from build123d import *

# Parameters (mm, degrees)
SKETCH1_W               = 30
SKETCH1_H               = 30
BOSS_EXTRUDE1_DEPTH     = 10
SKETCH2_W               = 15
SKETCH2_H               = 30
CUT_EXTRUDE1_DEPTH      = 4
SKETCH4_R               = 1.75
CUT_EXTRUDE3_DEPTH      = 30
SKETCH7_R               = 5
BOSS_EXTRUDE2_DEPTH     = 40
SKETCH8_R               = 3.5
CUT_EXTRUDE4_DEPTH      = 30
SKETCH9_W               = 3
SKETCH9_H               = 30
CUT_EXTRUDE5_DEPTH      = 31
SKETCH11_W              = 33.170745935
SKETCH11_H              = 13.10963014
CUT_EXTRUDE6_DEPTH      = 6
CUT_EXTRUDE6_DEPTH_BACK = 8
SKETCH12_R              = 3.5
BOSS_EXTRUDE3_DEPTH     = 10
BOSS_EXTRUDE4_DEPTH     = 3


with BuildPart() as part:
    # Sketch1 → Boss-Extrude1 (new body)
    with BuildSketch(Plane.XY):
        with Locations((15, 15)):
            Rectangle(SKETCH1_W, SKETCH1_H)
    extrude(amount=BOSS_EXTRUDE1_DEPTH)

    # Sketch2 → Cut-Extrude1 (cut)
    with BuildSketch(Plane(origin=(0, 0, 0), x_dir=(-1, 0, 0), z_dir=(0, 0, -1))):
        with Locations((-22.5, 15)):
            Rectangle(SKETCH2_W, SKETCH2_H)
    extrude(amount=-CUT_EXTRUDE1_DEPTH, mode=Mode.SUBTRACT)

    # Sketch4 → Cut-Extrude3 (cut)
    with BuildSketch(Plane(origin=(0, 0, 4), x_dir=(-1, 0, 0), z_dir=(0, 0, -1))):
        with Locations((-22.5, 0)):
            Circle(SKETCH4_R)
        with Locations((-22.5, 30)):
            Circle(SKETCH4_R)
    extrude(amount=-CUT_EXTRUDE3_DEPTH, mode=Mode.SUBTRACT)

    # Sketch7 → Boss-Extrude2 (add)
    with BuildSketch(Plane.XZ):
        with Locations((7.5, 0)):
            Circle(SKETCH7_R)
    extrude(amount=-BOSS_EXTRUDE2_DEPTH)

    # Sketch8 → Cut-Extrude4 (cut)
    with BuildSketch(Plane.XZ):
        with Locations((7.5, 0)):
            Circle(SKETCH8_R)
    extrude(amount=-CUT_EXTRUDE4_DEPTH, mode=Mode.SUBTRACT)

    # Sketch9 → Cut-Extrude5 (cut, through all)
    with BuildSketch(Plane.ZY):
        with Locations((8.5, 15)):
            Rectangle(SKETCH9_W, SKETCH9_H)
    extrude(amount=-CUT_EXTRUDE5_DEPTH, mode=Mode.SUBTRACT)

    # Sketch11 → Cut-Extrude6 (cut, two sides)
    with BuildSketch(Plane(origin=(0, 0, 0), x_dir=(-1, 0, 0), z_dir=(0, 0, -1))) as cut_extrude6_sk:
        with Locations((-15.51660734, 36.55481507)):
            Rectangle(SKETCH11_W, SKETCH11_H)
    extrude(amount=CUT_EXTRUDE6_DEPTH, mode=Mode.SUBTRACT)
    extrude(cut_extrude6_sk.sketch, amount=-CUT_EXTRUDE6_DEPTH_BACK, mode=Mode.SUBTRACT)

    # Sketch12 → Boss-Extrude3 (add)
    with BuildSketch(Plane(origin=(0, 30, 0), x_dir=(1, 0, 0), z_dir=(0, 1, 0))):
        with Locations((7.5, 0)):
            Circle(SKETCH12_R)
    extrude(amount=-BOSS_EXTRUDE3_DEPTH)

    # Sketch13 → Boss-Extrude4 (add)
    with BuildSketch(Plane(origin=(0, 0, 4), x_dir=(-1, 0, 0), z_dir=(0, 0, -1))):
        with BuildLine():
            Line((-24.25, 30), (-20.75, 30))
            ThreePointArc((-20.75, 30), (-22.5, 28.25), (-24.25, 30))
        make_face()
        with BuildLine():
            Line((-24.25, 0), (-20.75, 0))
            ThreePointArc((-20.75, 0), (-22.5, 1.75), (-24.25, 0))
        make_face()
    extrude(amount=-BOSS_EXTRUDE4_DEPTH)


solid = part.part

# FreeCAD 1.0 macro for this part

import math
import FreeCAD as App
import Part
import Sketcher

doc = App.newDocument("Part")
body = doc.addObject("PartDesign::Body", "Body")

# Sketch on XY plane
sketch1 = body.newObject("Sketcher::SketchObject", "Sketch")
sketch1.AttachmentSupport = (doc.getObject("XY_Plane"), [""])
sketch1.MapMode = "FlatFace"
sketch1.addGeometry(Part.LineSegment(App.Vector(0, 30, 0), App.Vector(0, 0, 0)), False)
sketch1.addGeometry(Part.LineSegment(App.Vector(0, 0, 0), App.Vector(30, 0, 0)), False)
sketch1.addGeometry(Part.LineSegment(App.Vector(30, 0, 0), App.Vector(30, 30, 0)), False)
sketch1.addGeometry(Part.LineSegment(App.Vector(30, 30, 0), App.Vector(0, 30, 0)), False)
sketch1.addConstraint(Sketcher.Constraint("Coincident", 0, 2, 1, 1))
sketch1.addConstraint(Sketcher.Constraint("Coincident", 1, 2, 2, 1))
sketch1.addConstraint(Sketcher.Constraint("Coincident", 2, 2, 3, 1))
sketch1.addConstraint(Sketcher.Constraint("Coincident", 3, 2, 0, 1))
sketch1.addConstraint(Sketcher.Constraint("Vertical", 0))
sketch1.addConstraint(Sketcher.Constraint("Horizontal", 1))
sketch1.addConstraint(Sketcher.Constraint("Vertical", 2))
sketch1.addConstraint(Sketcher.Constraint("Horizontal", 3))
sketch1.addConstraint(Sketcher.Constraint("Coincident", 0, 2, -1, 1))
sketch1.addConstraint(Sketcher.Constraint("Equal", 3, 0))
sketch1.addConstraint(Sketcher.Constraint("DistanceX", 1, 1, 1, 2, 30.0))
pad1 = body.newObject("PartDesign::Pad", "Pad")
pad1.Profile = sketch1
pad1.Length = 10

# Sketch on XY plane
sketch2 = body.newObject("Sketcher::SketchObject", "Sketch001")
sketch2.AttachmentSupport = (doc.getObject("XY_Plane"), [""])
sketch2.MapMode = "FlatFace"
sketch2.addGeometry(Part.LineSegment(App.Vector(30, 30, 0), App.Vector(30, 0, 0)), False)
sketch2.addGeometry(Part.LineSegment(App.Vector(30, 0, 0), App.Vector(15, 0, 0)), False)
sketch2.addGeometry(Part.LineSegment(App.Vector(15, 0, 0), App.Vector(15, 30, 0)), False)
sketch2.addGeometry(Part.LineSegment(App.Vector(15, 30, 0), App.Vector(30, 30, 0)), False)
sketch2.addConstraint(Sketcher.Constraint("Coincident", 0, 2, 1, 1))
sketch2.addConstraint(Sketcher.Constraint("Coincident", 1, 2, 2, 1))
sketch2.addConstraint(Sketcher.Constraint("Coincident", 2, 2, 3, 1))
sketch2.addConstraint(Sketcher.Constraint("Coincident", 3, 2, 0, 1))
sketch2.addConstraint(Sketcher.Constraint("Vertical", 0))
sketch2.addConstraint(Sketcher.Constraint("Horizontal", 1))
sketch2.addConstraint(Sketcher.Constraint("Vertical", 2))
sketch2.addConstraint(Sketcher.Constraint("Horizontal", 3))
sketch2.addConstraint(Sketcher.Constraint("PointOnObject", 0, 2, -1))
sketch2.addConstraint(Sketcher.Constraint("DistanceX", 1, 2, 1, 1, 15.0))
sketch2.addConstraint(Sketcher.Constraint("DistanceY", 0, 2, 0, 1, 30.0))
sketch2.addConstraint(Sketcher.Constraint("DistanceX", -1, 1, 0, 2, 30.0))
pocket1 = body.newObject("PartDesign::Pocket", "Pocket")
pocket1.Profile = sketch2
pocket1.Length = 4
pocket1.Reversed = True

# Sketch on XY plane
sketch3 = body.newObject("Sketcher::SketchObject", "Sketch002")
sketch3.AttachmentSupport = (doc.getObject("XY_Plane"), [""])
sketch3.MapMode = "FlatFace"
sketch3.AttachmentOffset = App.Placement(App.Vector(0, 0, 4), App.Rotation())
sketch3.addGeometry(Part.Circle(App.Vector(22.5, 0, 0), App.Vector(0, 0, 1), 1.8), False)
sketch3.addGeometry(Part.Circle(App.Vector(22.5, 30, 0), App.Vector(0, 0, 1), 1.8), False)
sketch3.addConstraint(Sketcher.Constraint("Equal", 0, 1))
sketch3.addConstraint(Sketcher.Constraint("PointOnObject", 0, 3, -1))
sketch3.addConstraint(Sketcher.Constraint("Vertical", 0, 3, 1, 3))
sketch3.addConstraint(Sketcher.Constraint("Diameter", 0, 3.5))
sketch3.addConstraint(Sketcher.Constraint("DistanceY", -1, 1, 1, 3, 30.0))
sketch3.addConstraint(Sketcher.Constraint("DistanceX", -1, 1, 0, 3, 22.5))
pocket2 = body.newObject("PartDesign::Pocket", "Pocket001")
pocket2.Profile = sketch3
pocket2.Length = 30
pocket2.Reversed = True

# Sketch on XZ plane
sketch4 = body.newObject("Sketcher::SketchObject", "Sketch003")
sketch4.AttachmentSupport = (doc.getObject("XZ_Plane"), [""])
sketch4.MapMode = "FlatFace"
sketch4.addGeometry(Part.Circle(App.Vector(8, 0, 0), App.Vector(0, 0, 1), 5), False)
sketch4.addConstraint(Sketcher.Constraint("PointOnObject", 0, 3, -1))
sketch4.addConstraint(Sketcher.Constraint("Diameter", 0, 10.0))
sketch4.addConstraint(Sketcher.Constraint("DistanceX", -1, 1, 0, 3, 7.5))
pad2 = body.newObject("PartDesign::Pad", "Pad001")
pad2.Profile = sketch4
pad2.Length = 40
pad2.Reversed = True

# Sketch on XZ plane
sketch5 = body.newObject("Sketcher::SketchObject", "Sketch004")
sketch5.AttachmentSupport = (doc.getObject("XZ_Plane"), [""])
sketch5.MapMode = "FlatFace"
sketch5.addGeometry(Part.Circle(App.Vector(7.5, 0, 0), App.Vector(0, 0, 1), 3.5), False)
sketch5.addConstraint(Sketcher.Constraint("PointOnObject", 0, 3, -1))
sketch5.addConstraint(Sketcher.Constraint("Diameter", 0, 7.0))
sketch5.addConstraint(Sketcher.Constraint("DistanceX", -1, 1, 0, 3, 7.5))
pocket3 = body.newObject("PartDesign::Pocket", "Pocket002")
pocket3.Profile = sketch5
pocket3.Length = 30

# Sketch on YZ plane
sketch6 = body.newObject("Sketcher::SketchObject", "Sketch005")
sketch6.AttachmentSupport = (doc.getObject("YZ_Plane"), [""])
sketch6.MapMode = "FlatFace"
sketch6.addGeometry(Part.LineSegment(App.Vector(30, 7, 0), App.Vector(0, 7, 0)), False)
sketch6.addGeometry(Part.LineSegment(App.Vector(0, 7, 0), App.Vector(0, 10, 0)), False)
sketch6.addGeometry(Part.LineSegment(App.Vector(0, 10, 0), App.Vector(30, 10, 0)), False)
sketch6.addGeometry(Part.LineSegment(App.Vector(30, 10, 0), App.Vector(30, 7, 0)), False)
sketch6.addConstraint(Sketcher.Constraint("Coincident", 0, 2, 1, 1))
sketch6.addConstraint(Sketcher.Constraint("Coincident", 1, 2, 2, 1))
sketch6.addConstraint(Sketcher.Constraint("Coincident", 2, 2, 3, 1))
sketch6.addConstraint(Sketcher.Constraint("Coincident", 3, 2, 0, 1))
sketch6.addConstraint(Sketcher.Constraint("Horizontal", 0))
sketch6.addConstraint(Sketcher.Constraint("Vertical", 1))
sketch6.addConstraint(Sketcher.Constraint("Horizontal", 2))
sketch6.addConstraint(Sketcher.Constraint("Vertical", 3))
sketch6.addConstraint(Sketcher.Constraint("PointOnObject", 0, 2, -2))
sketch6.addConstraint(Sketcher.Constraint("DistanceX", 0, 2, 0, 1, 30.0))
sketch6.addConstraint(Sketcher.Constraint("DistanceY", 1, 1, 1, 2, 3.0))
sketch6.addConstraint(Sketcher.Constraint("DistanceY", -1, 1, 0, 2, 7.0))
pocket4 = body.newObject("PartDesign::Pocket", "Pocket003")
pocket4.Profile = sketch6
pocket4.Type = "ThroughAll"
pocket4.Reversed = True

# Sketch on XY plane
sketch7 = body.newObject("Sketcher::SketchObject", "Sketch006")
sketch7.AttachmentSupport = (doc.getObject("XY_Plane"), [""])
sketch7.MapMode = "FlatFace"
sketch7.addGeometry(Part.LineSegment(App.Vector(32, 43, 0), App.Vector(32, 30, 0)), False)
sketch7.addGeometry(Part.LineSegment(App.Vector(32, 30, 0), App.Vector(-1, 30, 0)), False)
sketch7.addGeometry(Part.LineSegment(App.Vector(-1, 30, 0), App.Vector(-1, 43, 0)), False)
sketch7.addGeometry(Part.LineSegment(App.Vector(-1, 43, 0), App.Vector(32, 43, 0)), False)
sketch7.addConstraint(Sketcher.Constraint("Coincident", 0, 2, 1, 1))
sketch7.addConstraint(Sketcher.Constraint("Coincident", 1, 2, 2, 1))
sketch7.addConstraint(Sketcher.Constraint("Coincident", 2, 2, 3, 1))
sketch7.addConstraint(Sketcher.Constraint("Coincident", 3, 2, 0, 1))
sketch7.addConstraint(Sketcher.Constraint("Vertical", 0))
sketch7.addConstraint(Sketcher.Constraint("Horizontal", 1))
sketch7.addConstraint(Sketcher.Constraint("Vertical", 2))
sketch7.addConstraint(Sketcher.Constraint("Horizontal", 3))
sketch7.addConstraint(Sketcher.Constraint("DistanceY", -1, 1, 0, 2, 30.0))
sketch7.addConstraint(Sketcher.Constraint("DistanceY", 0, 2, 0, 1, 13.10963))
sketch7.addConstraint(Sketcher.Constraint("DistanceX", 1, 2, 1, 1, 33.170746))
sketch7.addConstraint(Sketcher.Constraint("DistanceX", -1, 1, 0, 2, 32.10198))
pocket5 = body.newObject("PartDesign::Pocket", "Pocket004")
pocket5.Profile = sketch7
pocket5.Type = "ThroughAll"
pocket5.Midplane = True

# Sketch on XZ plane
sketch8 = body.newObject("Sketcher::SketchObject", "Sketch007")
sketch8.AttachmentSupport = (doc.getObject("XZ_Plane"), [""])
sketch8.MapMode = "FlatFace"
sketch8.AttachmentOffset = App.Placement(App.Vector(0, 0, -30), App.Rotation())
sketch8.addGeometry(Part.Circle(App.Vector(7.5, 0, 0), App.Vector(0, 0, 1), 3.5), False)
sketch8.addConstraint(Sketcher.Constraint("PointOnObject", 0, 3, -1))
sketch8.addConstraint(Sketcher.Constraint("Diameter", 0, 7.0))
sketch8.addConstraint(Sketcher.Constraint("DistanceX", -1, 1, 0, 3, 7.5))
pad3 = body.newObject("PartDesign::Pad", "Pad002")
pad3.Profile = sketch8
pad3.Length = 10

# Sketch on XY plane
sketch9 = body.newObject("Sketcher::SketchObject", "Sketch008")
sketch9.AttachmentSupport = (doc.getObject("XY_Plane"), [""])
sketch9.MapMode = "FlatFace"
sketch9.AttachmentOffset = App.Placement(App.Vector(0, 0, 4), App.Rotation())
sketch9.addGeometry(Part.LineSegment(App.Vector(20.8, 30, 0), App.Vector(24.2, 30, 0)), False)
sketch9.addGeometry(Part.ArcOfCircle(Part.Circle(App.Vector(22.5, 30, 0), App.Vector(0, 0, 1), 1.8), math.radians(180), math.radians(360)), False)
sketch9.addGeometry(Part.LineSegment(App.Vector(24.2, 0, 0), App.Vector(20.8, 0, 0)), False)
sketch9.addGeometry(Part.ArcOfCircle(Part.Circle(App.Vector(22.5, 0, 0), App.Vector(0, 0, 1), 1.8), math.radians(0), math.radians(180)), False)
sketch9.addConstraint(Sketcher.Constraint("Coincident", 0, 1, 1, 1))
sketch9.addConstraint(Sketcher.Constraint("Coincident", 1, 2, 0, 2))
sketch9.addConstraint(Sketcher.Constraint("Coincident", 2, 1, 3, 1))
sketch9.addConstraint(Sketcher.Constraint("Coincident", 3, 2, 2, 2))
sketch9.addConstraint(Sketcher.Constraint("Horizontal", 0))
sketch9.addConstraint(Sketcher.Constraint("Horizontal", 2))
sketch9.addConstraint(Sketcher.Constraint("Equal", 1, 3))
sketch9.addConstraint(Sketcher.Constraint("PointOnObject", 3, 3, -1))
sketch9.addConstraint(Sketcher.Constraint("PointOnObject", 2, 1, -1))
sketch9.addConstraint(Sketcher.Constraint("Horizontal", 1, 3, 0, 1))
sketch9.addConstraint(Sketcher.Constraint("Vertical", 1, 3, 3, 3))
sketch9.addConstraint(Sketcher.Constraint("Radius", 1, 1.75))
sketch9.addConstraint(Sketcher.Constraint("DistanceY", -1, 1, 1, 3, 30.0))
sketch9.addConstraint(Sketcher.Constraint("DistanceX", -1, 1, 1, 3, 22.5))
pad4 = body.newObject("PartDesign::Pad", "Pad003")
pad4.Profile = sketch9
pad4.Length = 3

doc.recompute()
